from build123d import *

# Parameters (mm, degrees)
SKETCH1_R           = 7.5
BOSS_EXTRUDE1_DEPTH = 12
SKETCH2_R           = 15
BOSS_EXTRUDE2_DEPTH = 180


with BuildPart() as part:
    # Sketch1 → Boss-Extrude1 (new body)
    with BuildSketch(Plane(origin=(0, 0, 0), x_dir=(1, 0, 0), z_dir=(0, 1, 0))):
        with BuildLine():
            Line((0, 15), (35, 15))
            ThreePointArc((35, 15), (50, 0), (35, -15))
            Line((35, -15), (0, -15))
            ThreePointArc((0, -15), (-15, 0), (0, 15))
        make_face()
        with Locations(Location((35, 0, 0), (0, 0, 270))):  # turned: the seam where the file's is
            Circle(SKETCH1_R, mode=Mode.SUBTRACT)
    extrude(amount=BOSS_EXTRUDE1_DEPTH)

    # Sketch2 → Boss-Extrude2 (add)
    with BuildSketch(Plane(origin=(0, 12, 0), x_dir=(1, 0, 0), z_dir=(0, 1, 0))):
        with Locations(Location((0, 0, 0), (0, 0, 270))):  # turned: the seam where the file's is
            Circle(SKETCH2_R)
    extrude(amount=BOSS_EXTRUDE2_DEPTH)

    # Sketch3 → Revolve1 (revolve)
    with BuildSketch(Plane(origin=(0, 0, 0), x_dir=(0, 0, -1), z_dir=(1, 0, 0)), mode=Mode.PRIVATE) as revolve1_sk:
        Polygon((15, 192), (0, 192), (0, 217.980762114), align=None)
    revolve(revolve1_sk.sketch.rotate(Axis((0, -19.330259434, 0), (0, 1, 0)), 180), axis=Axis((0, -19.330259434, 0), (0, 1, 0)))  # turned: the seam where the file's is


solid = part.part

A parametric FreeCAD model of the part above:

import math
import FreeCAD as App
import Part
import Sketcher
Q = App.Units.Quantity


def add_polygon(sketch, points):
    """Adds a closed chain of lines whose ends are joined by coincident constraints."""
    first, n = sketch.GeometryCount, len(points)
    for a, b in zip(points, points[1:] + points[:1]):
        sketch.addGeometry(Part.LineSegment(App.Vector(*a, 0), App.Vector(*b, 0)), False)
    for i in range(n):
        sketch.addConstraint(Sketcher.Constraint("Coincident", first + i, 2, first + (i + 1) % n, 1))

doc = App.newDocument("Part")
body = doc.addObject("PartDesign::Body", "Body")

sketch1 = body.newObject("Sketcher::SketchObject", "Sketch")
sketch1.AttachmentSupport = (doc.getObject("XZ_Plane"), [""])
sketch1.MapMode = "FlatFace"
sketch1.addGeometry([
    Part.LineSegment(App.Vector(35, -15, 0), App.Vector(0, -15, 0)),
    Part.ArcOfCircle(Part.Circle(App.Vector(0, 0, 0), App.Vector(0, 0, 1), 15), math.radians(90), math.radians(270)),
    Part.LineSegment(App.Vector(0, 15, 0), App.Vector(35, 15, 0)),
    Part.ArcOfCircle(Part.Circle(App.Vector(35, 0, 0), App.Vector(0, 0, 1), 15), math.radians(-90), math.radians(90)),
    Part.Circle(App.Vector(35, 0, 0), App.Vector(0, 0, 1), 7.5),
], False)
sketch1.addConstraint([
    Sketcher.Constraint("Tangent", 0, 2, 1, 2),
    Sketcher.Constraint("Tangent", 1, 1, 2, 1),
    Sketcher.Constraint("Tangent", 2, 2, 3, 2),
    Sketcher.Constraint("Tangent", 3, 1, 0, 1),
    Sketcher.Constraint("Horizontal", 0),
    Sketcher.Constraint("Horizontal", 2),
    Sketcher.Constraint("Coincident", 1, 3, -1, 1),
    Sketcher.Constraint("Coincident", 4, 3, 3, 3),
    Sketcher.Constraint("Diameter", 4, 15.0),
    Sketcher.Constraint("Radius", 1, 15.0),
    Sketcher.Constraint("DistanceX", 0, 2, 0, 1, 35.0),
])
pad1 = body.newObject("PartDesign::Pad", "Pad")
pad1.Profile = sketch1
pad1.Length = 12
pad1.Reversed = True

sketch2 = body.newObject("Sketcher::SketchObject", "Sketch001")
sketch2.AttachmentSupport = (doc.getObject("XZ_Plane"), [""])
sketch2.MapMode = "FlatFace"
sketch2.AttachmentOffset = App.Placement(App.Vector(0, 0, -12), App.Rotation())
sketch2.addGeometry(Part.Circle(App.Vector(0, 0, 0), App.Vector(0, 0, 1), 15), False)
sketch2.addConstraint([
    Sketcher.Constraint("Coincident", 0, 3, -1, 1),
    Sketcher.Constraint("Diameter", 0, 30.0),
])
pad2 = body.newObject("PartDesign::Pad", "Pad001")
pad2.Profile = sketch2
pad2.Length = 180
pad2.Reversed = True

sketch3 = body.newObject("Sketcher::SketchObject", "Sketch002")
sketch3.AttachmentSupport = (doc.getObject("YZ_Plane"), [""])
sketch3.MapMode = "FlatFace"
add_polygon(sketch3, [(192, 0), (192, -15), (217.980762, 0)])
sketch3.addConstraint([
    Sketcher.Constraint("Vertical", 0),
    Sketcher.Constraint("Horizontal", 2),
    Sketcher.Constraint("PointOnObject", 1, 2, -1),
    Sketcher.Constraint("DistanceY", 0, 2, 0, 1, 15.0),
    Sketcher.Constraint("Angle", 1, Q("30 deg")),
    Sketcher.Constraint("DistanceX", -1, 1, 0, 2, 192.0),
])
revolution = body.newObject("PartDesign::Revolution", "Revolution")
revolution.Profile = sketch3
revolution.ReferenceAxis = (sketch3, ["H_Axis"])
revolution.Angle = 360

doc.recompute()
